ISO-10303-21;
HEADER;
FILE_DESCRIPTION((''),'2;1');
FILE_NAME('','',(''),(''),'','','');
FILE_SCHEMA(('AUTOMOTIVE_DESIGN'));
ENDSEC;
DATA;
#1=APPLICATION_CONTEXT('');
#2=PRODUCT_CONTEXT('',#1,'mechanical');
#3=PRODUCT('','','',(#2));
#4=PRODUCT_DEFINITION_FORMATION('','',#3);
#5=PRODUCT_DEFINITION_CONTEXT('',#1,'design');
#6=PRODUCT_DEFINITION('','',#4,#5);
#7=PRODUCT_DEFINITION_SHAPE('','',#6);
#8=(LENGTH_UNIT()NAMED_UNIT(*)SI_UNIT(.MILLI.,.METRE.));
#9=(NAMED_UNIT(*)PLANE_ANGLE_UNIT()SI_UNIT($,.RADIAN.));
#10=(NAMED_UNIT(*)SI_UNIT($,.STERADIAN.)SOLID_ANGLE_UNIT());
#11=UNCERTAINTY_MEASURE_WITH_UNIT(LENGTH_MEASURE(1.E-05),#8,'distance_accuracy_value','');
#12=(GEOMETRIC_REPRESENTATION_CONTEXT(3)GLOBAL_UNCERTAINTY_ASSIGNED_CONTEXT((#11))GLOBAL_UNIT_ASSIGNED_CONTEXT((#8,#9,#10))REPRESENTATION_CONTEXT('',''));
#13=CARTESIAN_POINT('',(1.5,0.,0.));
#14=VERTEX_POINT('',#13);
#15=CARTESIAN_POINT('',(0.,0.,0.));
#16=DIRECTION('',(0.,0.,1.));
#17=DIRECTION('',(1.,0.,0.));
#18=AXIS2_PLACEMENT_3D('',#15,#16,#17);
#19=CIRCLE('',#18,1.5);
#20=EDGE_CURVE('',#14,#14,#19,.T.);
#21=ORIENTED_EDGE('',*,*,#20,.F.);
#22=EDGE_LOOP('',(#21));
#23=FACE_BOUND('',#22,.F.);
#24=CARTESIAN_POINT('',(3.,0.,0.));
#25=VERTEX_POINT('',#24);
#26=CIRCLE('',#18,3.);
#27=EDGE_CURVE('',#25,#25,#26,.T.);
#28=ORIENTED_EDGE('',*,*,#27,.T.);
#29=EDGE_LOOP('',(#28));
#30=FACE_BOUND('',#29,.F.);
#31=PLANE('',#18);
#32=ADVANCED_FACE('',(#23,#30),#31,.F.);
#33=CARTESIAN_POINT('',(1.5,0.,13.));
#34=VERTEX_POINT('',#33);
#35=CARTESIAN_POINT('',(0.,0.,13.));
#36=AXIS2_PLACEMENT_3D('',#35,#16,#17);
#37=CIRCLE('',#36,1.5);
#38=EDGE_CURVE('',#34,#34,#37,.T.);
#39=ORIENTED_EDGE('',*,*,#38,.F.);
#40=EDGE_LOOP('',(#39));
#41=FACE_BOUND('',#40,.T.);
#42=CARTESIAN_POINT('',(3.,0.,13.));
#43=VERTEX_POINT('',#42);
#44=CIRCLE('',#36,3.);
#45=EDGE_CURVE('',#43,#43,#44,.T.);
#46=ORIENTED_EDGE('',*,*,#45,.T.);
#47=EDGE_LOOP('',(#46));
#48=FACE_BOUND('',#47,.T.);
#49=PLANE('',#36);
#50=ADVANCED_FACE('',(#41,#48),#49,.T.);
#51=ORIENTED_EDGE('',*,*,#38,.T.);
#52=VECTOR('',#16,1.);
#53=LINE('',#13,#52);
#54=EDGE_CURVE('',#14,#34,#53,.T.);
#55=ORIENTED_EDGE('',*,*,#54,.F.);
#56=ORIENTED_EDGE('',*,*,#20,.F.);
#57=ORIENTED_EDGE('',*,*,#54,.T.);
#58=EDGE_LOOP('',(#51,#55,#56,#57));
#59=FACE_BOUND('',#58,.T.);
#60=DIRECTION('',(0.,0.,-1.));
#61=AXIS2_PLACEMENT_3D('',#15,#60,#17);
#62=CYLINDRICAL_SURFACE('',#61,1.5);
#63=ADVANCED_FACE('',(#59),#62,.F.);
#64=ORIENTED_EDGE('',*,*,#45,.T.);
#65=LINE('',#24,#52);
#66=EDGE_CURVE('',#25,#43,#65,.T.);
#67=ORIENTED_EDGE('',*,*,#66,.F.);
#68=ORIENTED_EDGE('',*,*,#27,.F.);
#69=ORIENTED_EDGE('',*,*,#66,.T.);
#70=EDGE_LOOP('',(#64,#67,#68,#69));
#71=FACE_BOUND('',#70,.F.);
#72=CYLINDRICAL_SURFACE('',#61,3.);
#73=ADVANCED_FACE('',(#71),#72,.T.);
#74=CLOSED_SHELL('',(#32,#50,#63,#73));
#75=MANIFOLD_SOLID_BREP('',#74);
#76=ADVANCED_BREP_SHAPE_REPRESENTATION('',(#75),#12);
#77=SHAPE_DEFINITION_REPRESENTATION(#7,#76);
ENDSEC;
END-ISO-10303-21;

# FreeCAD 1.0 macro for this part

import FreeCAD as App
import Part
import Sketcher
from FreeCAD import Vector
Q = App.Units.Quantity

doc = App.newDocument("Part")
body = doc.addObject("PartDesign::Body", "Body")

# Sketch on XY plane
sketch1 = doc.addObject("Sketcher::SketchObject", "Sketch")
body.addObject(sketch1)
sketch1.AttachmentSupport = (doc.XY_Plane, [""])
sketch1.MapMode = "FlatFace"
sketch1.addGeometry([
    Part.Circle(Vector(0, 0, 0), Vector(0, 0, 1), 3),
    Part.Circle(Vector(0, 0, 0), Vector(0, 0, 1), 1.5),
], False)
sketch1.addConstraint([
    Sketcher.Constraint("Coincident", 0, 3, -1, 1),
    Sketcher.Constraint("Coincident", 1, 3, -1, 1),
    Sketcher.Constraint("Diameter", 0, Q("6 mm")),
    Sketcher.Constraint("Diameter", 1, Q("3 mm")),
])
pad1 = doc.addObject("PartDesign::Pad", "Pad")
body.addObject(pad1)
pad1.Profile = sketch1
pad1.Length = 13

doc.recompute()
